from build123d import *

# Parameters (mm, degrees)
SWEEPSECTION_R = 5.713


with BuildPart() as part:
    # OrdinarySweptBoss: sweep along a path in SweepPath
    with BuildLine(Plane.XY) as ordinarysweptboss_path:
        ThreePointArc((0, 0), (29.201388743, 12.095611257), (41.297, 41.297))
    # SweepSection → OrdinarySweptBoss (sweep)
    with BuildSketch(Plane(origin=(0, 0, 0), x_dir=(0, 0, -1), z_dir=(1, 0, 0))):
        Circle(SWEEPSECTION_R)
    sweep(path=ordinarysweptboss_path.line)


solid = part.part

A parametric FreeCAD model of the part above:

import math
import FreeCAD as App
import Part
import Sketcher

doc = App.newDocument("Part")
body = doc.addObject("PartDesign::Body", "Body")

# Sketch on YZ plane
sketch1 = body.newObject("Sketcher::SketchObject", "Sketch")
sketch1.AttachmentSupport = (doc.getObject("YZ_Plane"), [""])
sketch1.MapMode = "FlatFace"
sketch1.addGeometry(Part.Circle(App.Vector(0, 0, 0), App.Vector(0, 0, 1), 6), False)
sketch1.addConstraint([
    Sketcher.Constraint("Coincident", 0, 3, -1, 1),
    Sketcher.Constraint("Diameter", 0, 11.426),
])

# Sketch on XY plane
sketch2 = body.newObject("Sketcher::SketchObject", "Sketch001")
sketch2.AttachmentSupport = (doc.getObject("XY_Plane"), [""])
sketch2.MapMode = "FlatFace"
sketch2.addGeometry(Part.ArcOfCircle(Part.Circle(App.Vector(0, 41, 0), App.Vector(0, 0, 1), 41), math.radians(-90), math.radians(0)), False)
sketch2.addConstraint([
    Sketcher.Constraint("Coincident", 0, 1, -1, 1),
    Sketcher.Constraint("PointOnObject", 0, 3, -2),
    Sketcher.Constraint("Radius", 0, 41.297),
    Sketcher.Constraint("DistanceY", -1, 1, 0, 2, 41.297),
])
doc.recompute()

additivepipe = body.newObject("PartDesign::AdditivePipe", "AdditivePipe")
additivepipe.Profile = sketch1
additivepipe.Spine = (sketch2, ["Edge1"])

doc.recompute()
